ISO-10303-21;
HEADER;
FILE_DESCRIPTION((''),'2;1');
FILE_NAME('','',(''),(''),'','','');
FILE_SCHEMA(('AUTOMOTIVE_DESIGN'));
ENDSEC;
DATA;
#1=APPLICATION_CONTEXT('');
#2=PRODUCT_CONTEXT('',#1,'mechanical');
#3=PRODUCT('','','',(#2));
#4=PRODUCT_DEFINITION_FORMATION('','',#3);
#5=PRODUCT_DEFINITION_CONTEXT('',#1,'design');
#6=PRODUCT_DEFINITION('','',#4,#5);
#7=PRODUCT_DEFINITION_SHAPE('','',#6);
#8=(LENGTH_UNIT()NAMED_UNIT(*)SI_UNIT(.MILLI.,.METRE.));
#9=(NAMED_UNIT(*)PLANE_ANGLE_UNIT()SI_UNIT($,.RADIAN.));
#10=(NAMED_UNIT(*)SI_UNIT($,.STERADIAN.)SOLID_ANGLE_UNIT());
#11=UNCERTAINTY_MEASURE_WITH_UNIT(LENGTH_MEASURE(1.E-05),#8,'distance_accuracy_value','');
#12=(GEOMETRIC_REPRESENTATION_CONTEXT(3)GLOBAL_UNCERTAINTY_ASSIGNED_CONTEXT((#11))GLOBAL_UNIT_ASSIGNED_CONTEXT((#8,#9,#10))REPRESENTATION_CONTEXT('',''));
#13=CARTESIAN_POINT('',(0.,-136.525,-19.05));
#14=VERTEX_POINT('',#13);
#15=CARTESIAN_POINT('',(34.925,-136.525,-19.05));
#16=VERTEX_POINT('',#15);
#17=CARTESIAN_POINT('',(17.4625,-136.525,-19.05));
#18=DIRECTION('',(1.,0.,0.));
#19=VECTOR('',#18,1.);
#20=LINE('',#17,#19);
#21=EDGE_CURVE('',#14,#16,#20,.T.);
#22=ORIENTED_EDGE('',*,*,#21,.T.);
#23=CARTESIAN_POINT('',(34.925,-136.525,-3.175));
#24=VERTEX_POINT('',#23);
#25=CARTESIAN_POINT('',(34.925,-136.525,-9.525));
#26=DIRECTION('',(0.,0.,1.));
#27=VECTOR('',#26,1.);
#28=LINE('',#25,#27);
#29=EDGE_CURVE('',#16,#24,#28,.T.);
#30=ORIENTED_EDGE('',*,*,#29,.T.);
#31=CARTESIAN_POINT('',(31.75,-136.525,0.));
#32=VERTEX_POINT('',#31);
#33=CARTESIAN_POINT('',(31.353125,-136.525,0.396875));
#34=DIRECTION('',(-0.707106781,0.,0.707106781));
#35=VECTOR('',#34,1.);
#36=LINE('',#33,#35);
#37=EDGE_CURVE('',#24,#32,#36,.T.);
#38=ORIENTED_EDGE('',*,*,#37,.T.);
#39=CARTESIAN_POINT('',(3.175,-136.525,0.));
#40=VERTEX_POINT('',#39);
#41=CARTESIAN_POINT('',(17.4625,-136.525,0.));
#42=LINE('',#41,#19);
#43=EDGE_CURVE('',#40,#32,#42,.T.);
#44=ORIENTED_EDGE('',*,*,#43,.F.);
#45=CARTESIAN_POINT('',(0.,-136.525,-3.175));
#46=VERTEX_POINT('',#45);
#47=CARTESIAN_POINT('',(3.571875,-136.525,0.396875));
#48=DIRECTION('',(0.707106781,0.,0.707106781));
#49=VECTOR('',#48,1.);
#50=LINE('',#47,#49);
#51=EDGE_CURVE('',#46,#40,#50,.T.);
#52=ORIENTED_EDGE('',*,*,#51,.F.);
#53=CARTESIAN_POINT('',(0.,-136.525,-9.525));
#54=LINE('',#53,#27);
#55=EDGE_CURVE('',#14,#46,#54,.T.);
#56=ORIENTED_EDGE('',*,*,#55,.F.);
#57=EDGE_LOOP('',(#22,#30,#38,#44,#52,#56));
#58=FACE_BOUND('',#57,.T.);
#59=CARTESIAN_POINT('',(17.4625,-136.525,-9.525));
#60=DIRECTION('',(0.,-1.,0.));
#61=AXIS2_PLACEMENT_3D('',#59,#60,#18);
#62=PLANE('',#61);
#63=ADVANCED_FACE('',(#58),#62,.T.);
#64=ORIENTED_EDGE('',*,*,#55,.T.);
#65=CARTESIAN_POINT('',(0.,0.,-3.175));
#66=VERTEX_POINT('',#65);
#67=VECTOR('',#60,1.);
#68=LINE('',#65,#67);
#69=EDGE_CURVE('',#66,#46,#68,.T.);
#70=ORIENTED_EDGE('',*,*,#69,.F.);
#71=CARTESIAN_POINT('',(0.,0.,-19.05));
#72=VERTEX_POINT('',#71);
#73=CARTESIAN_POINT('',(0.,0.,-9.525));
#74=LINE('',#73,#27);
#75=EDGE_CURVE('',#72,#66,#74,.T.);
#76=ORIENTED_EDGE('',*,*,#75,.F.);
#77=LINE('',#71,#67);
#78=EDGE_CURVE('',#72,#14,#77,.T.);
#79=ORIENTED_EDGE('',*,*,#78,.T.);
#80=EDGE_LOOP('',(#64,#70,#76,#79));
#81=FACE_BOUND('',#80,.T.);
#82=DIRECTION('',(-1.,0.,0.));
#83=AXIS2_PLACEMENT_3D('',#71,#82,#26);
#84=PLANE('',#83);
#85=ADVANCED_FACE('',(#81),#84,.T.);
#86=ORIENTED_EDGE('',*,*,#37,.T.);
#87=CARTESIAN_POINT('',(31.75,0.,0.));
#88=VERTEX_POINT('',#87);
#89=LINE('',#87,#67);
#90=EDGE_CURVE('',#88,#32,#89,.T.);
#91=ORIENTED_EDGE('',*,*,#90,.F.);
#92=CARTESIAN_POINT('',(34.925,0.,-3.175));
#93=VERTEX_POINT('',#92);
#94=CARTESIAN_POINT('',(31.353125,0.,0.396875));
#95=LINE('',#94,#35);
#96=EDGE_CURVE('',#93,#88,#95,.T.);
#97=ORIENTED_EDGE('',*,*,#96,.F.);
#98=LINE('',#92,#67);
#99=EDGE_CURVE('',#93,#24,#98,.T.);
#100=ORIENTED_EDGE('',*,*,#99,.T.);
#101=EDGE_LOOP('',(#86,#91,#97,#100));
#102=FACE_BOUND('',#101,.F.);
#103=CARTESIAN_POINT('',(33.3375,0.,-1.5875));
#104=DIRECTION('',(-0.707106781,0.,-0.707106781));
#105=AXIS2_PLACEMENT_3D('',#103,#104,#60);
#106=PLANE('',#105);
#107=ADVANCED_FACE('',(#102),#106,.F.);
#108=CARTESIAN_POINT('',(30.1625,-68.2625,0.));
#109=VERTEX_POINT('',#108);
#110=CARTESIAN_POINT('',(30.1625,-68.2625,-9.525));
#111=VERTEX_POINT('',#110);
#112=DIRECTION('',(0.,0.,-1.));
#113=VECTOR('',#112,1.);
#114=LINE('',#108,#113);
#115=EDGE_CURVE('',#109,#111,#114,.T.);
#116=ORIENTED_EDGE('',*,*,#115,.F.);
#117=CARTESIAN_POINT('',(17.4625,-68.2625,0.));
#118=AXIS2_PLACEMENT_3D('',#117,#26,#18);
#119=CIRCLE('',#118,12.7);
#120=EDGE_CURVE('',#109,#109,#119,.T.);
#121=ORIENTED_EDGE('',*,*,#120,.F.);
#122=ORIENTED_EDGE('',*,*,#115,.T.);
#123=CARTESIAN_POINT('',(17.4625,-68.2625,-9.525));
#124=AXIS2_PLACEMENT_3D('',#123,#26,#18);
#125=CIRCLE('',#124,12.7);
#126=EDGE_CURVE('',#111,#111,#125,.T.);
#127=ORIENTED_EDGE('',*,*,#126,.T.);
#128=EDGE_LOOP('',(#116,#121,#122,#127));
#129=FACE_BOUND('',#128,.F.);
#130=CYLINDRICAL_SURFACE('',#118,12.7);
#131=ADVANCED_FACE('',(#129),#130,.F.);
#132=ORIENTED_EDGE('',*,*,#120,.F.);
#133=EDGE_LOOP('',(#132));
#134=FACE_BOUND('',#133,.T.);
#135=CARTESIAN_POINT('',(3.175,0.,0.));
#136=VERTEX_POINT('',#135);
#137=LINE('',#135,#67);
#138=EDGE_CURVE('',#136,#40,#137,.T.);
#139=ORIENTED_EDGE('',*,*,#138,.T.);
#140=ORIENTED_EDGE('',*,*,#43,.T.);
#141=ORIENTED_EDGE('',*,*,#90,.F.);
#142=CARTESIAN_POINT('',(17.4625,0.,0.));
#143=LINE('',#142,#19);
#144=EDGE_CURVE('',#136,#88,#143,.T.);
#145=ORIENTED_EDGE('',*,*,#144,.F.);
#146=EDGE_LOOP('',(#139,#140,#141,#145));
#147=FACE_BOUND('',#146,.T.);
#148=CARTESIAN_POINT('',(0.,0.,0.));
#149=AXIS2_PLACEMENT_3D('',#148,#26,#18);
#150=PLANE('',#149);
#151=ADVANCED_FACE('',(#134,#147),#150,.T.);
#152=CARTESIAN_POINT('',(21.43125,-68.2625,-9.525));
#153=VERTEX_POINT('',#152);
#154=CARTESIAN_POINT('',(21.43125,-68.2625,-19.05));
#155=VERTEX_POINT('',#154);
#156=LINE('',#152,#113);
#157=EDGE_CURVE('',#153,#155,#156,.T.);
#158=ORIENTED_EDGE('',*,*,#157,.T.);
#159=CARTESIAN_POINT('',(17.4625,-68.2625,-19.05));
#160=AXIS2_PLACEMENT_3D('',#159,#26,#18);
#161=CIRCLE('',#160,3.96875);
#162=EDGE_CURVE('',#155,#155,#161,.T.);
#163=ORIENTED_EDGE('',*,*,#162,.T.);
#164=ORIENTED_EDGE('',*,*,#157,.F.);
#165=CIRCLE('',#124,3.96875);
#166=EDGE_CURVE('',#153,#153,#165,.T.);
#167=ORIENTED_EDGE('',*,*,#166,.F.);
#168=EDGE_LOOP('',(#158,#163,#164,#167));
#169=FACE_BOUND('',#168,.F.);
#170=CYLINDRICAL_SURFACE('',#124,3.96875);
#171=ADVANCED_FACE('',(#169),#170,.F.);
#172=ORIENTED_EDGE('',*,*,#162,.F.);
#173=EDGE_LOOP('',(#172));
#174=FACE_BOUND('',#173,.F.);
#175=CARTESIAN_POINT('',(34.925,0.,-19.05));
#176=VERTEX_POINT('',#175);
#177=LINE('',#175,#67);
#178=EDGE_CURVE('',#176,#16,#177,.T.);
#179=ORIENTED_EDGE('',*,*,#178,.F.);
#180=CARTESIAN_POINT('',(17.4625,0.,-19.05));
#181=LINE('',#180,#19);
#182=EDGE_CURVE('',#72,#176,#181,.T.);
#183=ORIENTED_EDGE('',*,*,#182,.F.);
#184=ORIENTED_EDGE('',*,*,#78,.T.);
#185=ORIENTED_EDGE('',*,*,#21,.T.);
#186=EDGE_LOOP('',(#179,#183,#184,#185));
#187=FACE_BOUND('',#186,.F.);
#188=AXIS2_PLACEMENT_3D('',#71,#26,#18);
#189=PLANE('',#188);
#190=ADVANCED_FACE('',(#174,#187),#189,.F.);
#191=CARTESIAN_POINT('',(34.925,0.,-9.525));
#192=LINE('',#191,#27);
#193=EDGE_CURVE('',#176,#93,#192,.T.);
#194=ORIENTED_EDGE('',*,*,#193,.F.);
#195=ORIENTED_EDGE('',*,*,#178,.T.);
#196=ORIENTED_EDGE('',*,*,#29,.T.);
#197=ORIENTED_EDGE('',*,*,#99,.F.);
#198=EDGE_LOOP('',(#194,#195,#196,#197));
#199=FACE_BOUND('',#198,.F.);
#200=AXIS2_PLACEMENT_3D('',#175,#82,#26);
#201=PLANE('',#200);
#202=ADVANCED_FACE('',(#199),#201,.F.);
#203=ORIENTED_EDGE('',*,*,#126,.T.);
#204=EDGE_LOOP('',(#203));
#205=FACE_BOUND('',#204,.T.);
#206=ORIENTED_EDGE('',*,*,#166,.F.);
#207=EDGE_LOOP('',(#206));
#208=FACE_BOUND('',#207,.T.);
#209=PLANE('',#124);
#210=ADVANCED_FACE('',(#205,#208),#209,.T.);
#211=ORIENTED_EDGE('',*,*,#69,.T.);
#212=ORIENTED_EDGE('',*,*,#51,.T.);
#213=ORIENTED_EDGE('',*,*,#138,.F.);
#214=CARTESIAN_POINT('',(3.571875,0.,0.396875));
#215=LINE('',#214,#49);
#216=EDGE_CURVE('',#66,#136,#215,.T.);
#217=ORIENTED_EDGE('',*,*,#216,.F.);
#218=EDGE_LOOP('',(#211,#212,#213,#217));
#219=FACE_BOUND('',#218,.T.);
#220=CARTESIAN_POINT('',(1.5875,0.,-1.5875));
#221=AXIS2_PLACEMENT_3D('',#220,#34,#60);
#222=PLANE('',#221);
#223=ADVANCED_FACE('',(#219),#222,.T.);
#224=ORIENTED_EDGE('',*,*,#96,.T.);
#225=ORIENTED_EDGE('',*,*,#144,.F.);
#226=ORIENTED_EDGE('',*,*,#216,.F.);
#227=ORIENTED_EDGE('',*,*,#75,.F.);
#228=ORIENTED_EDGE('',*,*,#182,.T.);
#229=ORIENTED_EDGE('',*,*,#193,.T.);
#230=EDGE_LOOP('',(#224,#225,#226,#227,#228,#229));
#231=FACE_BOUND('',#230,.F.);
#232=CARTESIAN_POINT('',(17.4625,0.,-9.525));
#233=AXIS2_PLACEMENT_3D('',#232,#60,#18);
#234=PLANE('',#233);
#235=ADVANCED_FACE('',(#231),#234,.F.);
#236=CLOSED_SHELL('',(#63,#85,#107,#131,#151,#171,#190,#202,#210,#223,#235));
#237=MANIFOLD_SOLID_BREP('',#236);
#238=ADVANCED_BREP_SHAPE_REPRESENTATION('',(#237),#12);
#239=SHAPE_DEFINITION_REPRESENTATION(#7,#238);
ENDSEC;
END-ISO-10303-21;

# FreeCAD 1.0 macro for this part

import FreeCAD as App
import Part
import Sketcher
Q = App.Units.Quantity


def edges_at(feature, points):
    """Names of the edges that pass closest to the given points."""
    edges = feature.Shape.Edges
    near = lambda p: min(range(len(edges)), key=lambda i: edges[i].distToShape(Part.Vertex(*p))[0])
    return sorted({f"Edge{near(p) + 1}" for p in points})


def add_polygon(sketch, points):
    """Adds a closed chain of lines whose ends are joined by coincident constraints."""
    first, n = sketch.GeometryCount, len(points)
    for a, b in zip(points, points[1:] + points[:1]):
        sketch.addGeometry(Part.LineSegment(App.Vector(*a, 0), App.Vector(*b, 0)), False)
    for i in range(n):
        sketch.addConstraint(Sketcher.Constraint("Coincident", first + i, 2, first + (i + 1) % n, 1))

doc = App.newDocument("Part")
body = doc.addObject("PartDesign::Body", "Body")

# Sketch on XZ plane
sketch1 = body.newObject("Sketcher::SketchObject", "Sketch")
sketch1.AttachmentSupport = (doc.getObject("XZ_Plane"), [""])
sketch1.MapMode = "FlatFace"
add_polygon(sketch1, [(0, 0), (0, -19), (35, -19), (35, 0)])  # lines 0-3
sketch1.addConstraint([
    Sketcher.Constraint("Vertical", 0),
    Sketcher.Constraint("Horizontal", 1),
    Sketcher.Constraint("Vertical", 2),
    Sketcher.Constraint("Horizontal", 3),
    Sketcher.Constraint("Coincident", 3, 2, -1, 1),
    Sketcher.Constraint("DistanceY", 0, 2, 0, 1, Q("0.75 in")),
    Sketcher.Constraint("DistanceX", 1, 1, 1, 2, Q("1.375 in")),
])
pad1 = body.newObject("PartDesign::Pad", "Pad")
pad1.Profile = sketch1
pad1.Length = Q("5.375 in")
doc.recompute()

chamfer = body.newObject("PartDesign::Chamfer", "Chamfer")
chamfer.Base = (pad1, edges_at(pad1, [(34.925, -68.263, 0), (0, -68.263, 0)]))
chamfer.Size = Q("0.125 in")

# Sketch on XY plane
sketch2 = body.newObject("Sketcher::SketchObject", "Sketch001")
sketch2.AttachmentSupport = (doc.getObject("XY_Plane"), [""])
sketch2.MapMode = "FlatFace"
sketch2.addGeometry(Part.Circle(App.Vector(17, -68, 0), App.Vector(0, 0, 1), 13), False)
sketch2.addConstraint([
    Sketcher.Constraint("Diameter", 0, Q("1 in")),
    Sketcher.Constraint("DistanceX", -1, 1, 0, 3, Q("0.6875 in")),
    Sketcher.Constraint("DistanceY", 0, 3, -1, 1, Q("2.6875 in")),
])
pocket1 = body.newObject("PartDesign::Pocket", "Pocket")
pocket1.Profile = sketch2
pocket1.Length = Q("0.375 in")

# Sketch on XY plane
sketch3 = body.newObject("Sketcher::SketchObject", "Sketch002")
sketch3.AttachmentSupport = (doc.getObject("XY_Plane"), [""])
sketch3.MapMode = "FlatFace"
sketch3.AttachmentOffset = App.Placement(App.Vector(0, 0, -0.375 * 25.4), App.Rotation())
sketch3.addGeometry(Part.Circle(App.Vector(17.5, -68.3, 0), App.Vector(0, 0, 1), 4), False)
sketch3.addConstraint([
    Sketcher.Constraint("Diameter", 0, Q("0.3125 in")),
    Sketcher.Constraint("DistanceX", -1, 1, 0, 3, Q("0.6875 in")),
    Sketcher.Constraint("DistanceY", 0, 3, -1, 1, Q("2.6875 in")),
])
pocket2 = body.newObject("PartDesign::Pocket", "Pocket001")
pocket2.Profile = sketch3
pocket2.Length = Q("1 in")

doc.recompute()
